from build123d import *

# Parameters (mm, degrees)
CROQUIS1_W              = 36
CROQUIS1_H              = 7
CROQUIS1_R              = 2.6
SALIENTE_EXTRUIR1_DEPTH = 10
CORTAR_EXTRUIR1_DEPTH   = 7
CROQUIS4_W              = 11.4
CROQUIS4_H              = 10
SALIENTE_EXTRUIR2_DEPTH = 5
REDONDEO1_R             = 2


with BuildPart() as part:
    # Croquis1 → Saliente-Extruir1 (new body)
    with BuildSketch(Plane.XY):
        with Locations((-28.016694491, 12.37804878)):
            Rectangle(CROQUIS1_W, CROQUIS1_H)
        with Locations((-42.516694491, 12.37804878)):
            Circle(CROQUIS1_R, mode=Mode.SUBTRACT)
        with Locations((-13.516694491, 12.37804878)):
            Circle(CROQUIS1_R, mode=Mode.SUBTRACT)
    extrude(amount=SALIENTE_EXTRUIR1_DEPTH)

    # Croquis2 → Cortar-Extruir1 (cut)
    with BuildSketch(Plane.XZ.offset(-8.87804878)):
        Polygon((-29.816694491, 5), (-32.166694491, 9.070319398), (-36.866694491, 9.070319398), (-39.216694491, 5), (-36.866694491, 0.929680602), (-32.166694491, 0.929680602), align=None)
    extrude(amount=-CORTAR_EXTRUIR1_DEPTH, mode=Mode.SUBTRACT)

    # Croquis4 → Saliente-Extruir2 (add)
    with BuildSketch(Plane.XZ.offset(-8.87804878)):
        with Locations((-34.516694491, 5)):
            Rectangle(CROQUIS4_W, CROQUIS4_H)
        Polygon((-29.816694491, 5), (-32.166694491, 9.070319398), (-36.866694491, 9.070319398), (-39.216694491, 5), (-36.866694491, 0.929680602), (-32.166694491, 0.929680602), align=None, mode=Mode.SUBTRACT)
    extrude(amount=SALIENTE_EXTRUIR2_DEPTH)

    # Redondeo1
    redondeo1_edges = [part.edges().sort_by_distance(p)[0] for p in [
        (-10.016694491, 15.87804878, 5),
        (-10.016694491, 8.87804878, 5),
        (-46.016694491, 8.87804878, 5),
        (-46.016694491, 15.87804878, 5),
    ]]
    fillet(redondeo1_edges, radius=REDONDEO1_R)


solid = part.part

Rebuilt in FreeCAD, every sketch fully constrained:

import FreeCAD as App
import Part
import Sketcher

V = App.Vector
Q = App.Units.Quantity


def edges_at(feature, points):
    """Names of the edges that pass closest to the given points."""
    edges = feature.Shape.Edges
    near = lambda p: min(range(len(edges)), key=lambda i: edges[i].distToShape(Part.Vertex(*p))[0])
    return sorted({f"Edge{near(p) + 1}" for p in points})


def add_polygon(sketch, points):
    """Adds a closed chain of lines whose ends are joined by coincident constraints."""
    first, n = sketch.GeometryCount, len(points)
    for a, b in zip(points, points[1:] + points[:1]):
        sketch.addGeometry(Part.LineSegment(App.Vector(*a, 0), App.Vector(*b, 0)), False)
    for i in range(n):
        sketch.addConstraint(Sketcher.Constraint("Coincident", first + i, 2, first + (i + 1) % n, 1))

doc = App.newDocument("Part")
params = doc.addObject("Spreadsheet::Sheet", "Params")
for row, (alias, value) in enumerate([
    ("sketch1_diameter", "5.2 mm"),
    ("sketch1_width", "36 mm"),
    ("sketch1_height", "7 mm"),
    ("pad1_length", "10 mm"),
    ("sketch2_width", "4.7 mm"),
    ("sketch2_length", "4.7 mm"),
    ("pocket1_length", "7 mm"),
    ("sketch3_height", "10 mm"),
    ("sketch3_width", "11.4 mm"),
    ("sketch3_width2", "4.7 mm"),
    ("pad2_length", "5 mm"),
    ("fillet_radius", "2 mm"),
], start=1):
    params.set(f"A{row}", alias)
    params.set(f"B{row}", "=" + value)
    params.setAlias(f"B{row}", alias)

body = doc.addObject("PartDesign::Body", "Body")

# Sketch on XY plane
sketch1 = body.newObject("Sketcher::SketchObject", "Sketch")
sketch1.AttachmentSupport = (doc.getObject("XY_Plane"), [""])
sketch1.MapMode = "FlatFace"
add_polygon(sketch1, [(-46, 15.9), (-46, 8.9), (-10, 8.9), (-10, 15.9)])  # lines 0-3
sketch1.addGeometry(Part.Circle(V(-42.5, 12.4, 0), V(0, 0, 1), 2.6), False)  # 4
sketch1.addGeometry(Part.Circle(V(-13.5, 12.4, 0), V(0, 0, 1), 2.6), False)  # 5
sketch1.addConstraint([
    Sketcher.Constraint("Vertical", 0),
    Sketcher.Constraint("Horizontal", 1),
    Sketcher.Constraint("Vertical", 2),
    Sketcher.Constraint("Horizontal", 3),
    Sketcher.Constraint("Equal", 4, 5),
    Sketcher.Constraint("Horizontal", 4, 3, 5, 3),
    Sketcher.Constraint("Diameter", 4, Q("5.2 mm")),
    Sketcher.Constraint("DistanceX", 1, 1, 1, 2, Q("36 mm")),
    Sketcher.Constraint("DistanceY", 0, 2, 0, 1, Q("7 mm")),
    Sketcher.Constraint("DistanceX", 4, 3, 5, 3, Q("29 mm")),
    Sketcher.Constraint("DistanceX", 0, 2, 4, 3, Q("3.5 mm")),
    Sketcher.Constraint("DistanceY", 0, 2, 4, 3, Q("3.5 mm")),
    Sketcher.Constraint("DistanceY", -1, 1, 4, 3, Q("12.378049 mm")),
    Sketcher.Constraint("DistanceX", 4, 3, -1, 1, Q("42.516694 mm")),
])
sketch1.setExpression("Constraints[10]", "Params.sketch1_diameter")
sketch1.setExpression("Constraints[11]", "Params.sketch1_width")
sketch1.setExpression("Constraints[12]", "Params.sketch1_height")
pad1 = body.newObject("PartDesign::Pad", "Pad")
pad1.Profile = sketch1
pad1.setExpression("Length", "Params.pad1_length")

# Sketch on XZ plane
sketch2 = body.newObject("Sketcher::SketchObject", "Sketch001")
sketch2.AttachmentSupport = (doc.getObject("XZ_Plane"), [""])
sketch2.MapMode = "FlatFace"
sketch2.AttachmentOffset = App.Placement(V(0, 0, -8.878049), App.Rotation())
add_polygon(sketch2, [(-29.8, 5), (-32.2, 9.1), (-36.9, 9.1), (-39.2, 5), (-36.9, 0.9), (-32.2, 0.9)])  # lines 0-5
sketch2.addConstraint([
    Sketcher.Constraint("Horizontal", 1),
    Sketcher.Constraint("Horizontal", 4),
    Sketcher.Constraint("Parallel", 0, 3),
    Sketcher.Constraint("Parallel", 2, 5),
    Sketcher.Constraint("Horizontal", 2, 2, 5, 2),
    Sketcher.Constraint("Vertical", 1, 2, 3, 2),
    Sketcher.Constraint("Vertical", 0, 2, 4, 2),
    Sketcher.Constraint("Angle", 0, Q("120 deg")),
    Sketcher.Constraint("DistanceX", 1, 2, 1, 1, Q("4.7 mm")),
    Sketcher.Constraint("DistanceY", -1, 1, 2, 2, Q("5 mm")),
    Sketcher.Constraint("Distance", 0, Q("4.7 mm")),
    Sketcher.Constraint("DistanceX", 0, 2, -1, 1, Q("32.166694 mm")),
])
sketch2.setExpression("Constraints[14]", "Params.sketch2_width")
sketch2.setExpression("Constraints[16]", "Params.sketch2_length")
pocket1 = body.newObject("PartDesign::Pocket", "Pocket")
pocket1.Profile = sketch2
pocket1.setExpression("Length", "Params.pocket1_length")

# Sketch on XZ plane
sketch3 = body.newObject("Sketcher::SketchObject", "Sketch002")
sketch3.AttachmentSupport = (doc.getObject("XZ_Plane"), [""])
sketch3.MapMode = "FlatFace"
sketch3.AttachmentOffset = App.Placement(V(0, 0, -8.878049), App.Rotation())
add_polygon(sketch3, [(-40.2, 10), (-40.2, 0), (-28.8, 0), (-28.8, 10)])  # lines 0-3
add_polygon(sketch3, [(-32.2, 9.1), (-29.8, 5), (-32.2, 0.9), (-36.9, 0.9), (-39.2, 5), (-36.9, 9.1)])  # lines 4-9
sketch3.addConstraint([
    Sketcher.Constraint("Vertical", 0),
    Sketcher.Constraint("Horizontal", 1),
    Sketcher.Constraint("Vertical", 2),
    Sketcher.Constraint("Horizontal", 3),
    Sketcher.Constraint("Horizontal", 6),
    Sketcher.Constraint("Horizontal", 9),
    Sketcher.Constraint("PointOnObject", 0, 2, -1),
    Sketcher.Constraint("Parallel", 4, 7),
    Sketcher.Constraint("Parallel", 5, 8),
    Sketcher.Constraint("Horizontal", 4, 2, 7, 2),
    Sketcher.Constraint("Vertical", 6, 2, 8, 2),
    Sketcher.Constraint("Vertical", 5, 2, 9, 2),
    Sketcher.Constraint("DistanceY", 0, 2, 0, 1, Q("10 mm")),
    Sketcher.Constraint("Angle", 4, Q("-60 deg")),
    Sketcher.Constraint("DistanceX", 1, 1, 1, 2, Q("11.4 mm")),
    Sketcher.Constraint("DistanceX", 6, 2, 6, 1, Q("4.7 mm")),
    Sketcher.Constraint("DistanceY", -1, 1, 4, 2, Q("5 mm")),
    Sketcher.Constraint("DistanceX", 4, 2, 1, 2, Q("1 mm")),
    Sketcher.Constraint("DistanceX", 0, 2, 7, 2, Q("1 mm")),
    Sketcher.Constraint("DistanceX", 0, 2, -1, 1, Q("40.216694 mm")),
])
sketch3.setExpression("Constraints[22]", "Params.sketch3_height")
sketch3.setExpression("Constraints[24]", "Params.sketch3_width")
sketch3.setExpression("Constraints[25]", "Params.sketch3_width2")
pad2 = body.newObject("PartDesign::Pad", "Pad001")
pad2.Profile = sketch3
pad2.setExpression("Length", "Params.pad2_length")
doc.recompute()

fillet = body.newObject("PartDesign::Fillet", "Fillet")
fillet.Base = (pad2, edges_at(pad2, [
    (-10.017, 15.878, 5),
    (-10.017, 8.878, 5),
    (-46.017, 8.878, 5),
    (-46.017, 15.878, 5),
]))
fillet.setExpression("Radius", "Params.fillet_radius")

doc.recompute()
